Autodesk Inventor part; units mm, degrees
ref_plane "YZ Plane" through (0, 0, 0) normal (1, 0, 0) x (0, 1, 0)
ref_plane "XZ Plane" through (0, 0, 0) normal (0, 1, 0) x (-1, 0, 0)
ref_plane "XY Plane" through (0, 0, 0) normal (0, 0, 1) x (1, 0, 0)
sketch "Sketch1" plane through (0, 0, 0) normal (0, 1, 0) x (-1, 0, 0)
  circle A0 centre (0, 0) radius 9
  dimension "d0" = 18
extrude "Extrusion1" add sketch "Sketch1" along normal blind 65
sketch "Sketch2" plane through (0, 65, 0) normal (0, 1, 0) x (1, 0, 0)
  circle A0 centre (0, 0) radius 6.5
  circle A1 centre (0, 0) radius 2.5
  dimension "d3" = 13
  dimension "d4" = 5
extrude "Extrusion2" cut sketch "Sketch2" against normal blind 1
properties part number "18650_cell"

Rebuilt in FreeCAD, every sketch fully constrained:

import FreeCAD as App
import Part
import Sketcher

doc = App.newDocument("Part")
params = doc.addObject("Spreadsheet::Sheet", "Params")
for row, (alias, value) in enumerate([
    ("sketch1_diameter", "18 mm"),
    ("pad1_length", "65 mm"),
    ("sketch2_diameter", "13 mm"),
    ("sketch2_diameter2", "5 mm"),
    ("pocket1_length", "1 mm"),
], start=1):
    params.set(f"A{row}", alias)
    params.set(f"B{row}", "=" + value)
    params.setAlias(f"B{row}", alias)

body = doc.addObject("PartDesign::Body", "Body")

sketch1 = body.newObject("Sketcher::SketchObject", "Sketch")
sketch1.AttachmentSupport = (doc.getObject("XZ_Plane"), [""])
sketch1.MapMode = "FlatFace"
sketch1.addGeometry(Part.Circle(App.Vector(0, 0, 0), App.Vector(0, 0, 1), 9), False)
sketch1.addConstraint([
    Sketcher.Constraint("Coincident", 0, 3, -1, 1),
    Sketcher.Constraint("Diameter", 0, 18.0),
])
sketch1.setExpression("Constraints[1]", "Params.sketch1_diameter")
pad1 = body.newObject("PartDesign::Pad", "Pad")
pad1.Profile = sketch1
pad1.setExpression("Length", "Params.pad1_length")
pad1.Reversed = True

sketch2 = body.newObject("Sketcher::SketchObject", "Sketch001")
sketch2.AttachmentSupport = (doc.getObject("XZ_Plane"), [""])
sketch2.MapMode = "FlatFace"
sketch2.AttachmentOffset = App.Placement(App.Vector(0, 0, -65), App.Rotation())
sketch2.addGeometry([
    Part.Circle(App.Vector(0, 0, 0), App.Vector(0, 0, 1), 6.5),
    Part.Circle(App.Vector(0, 0, 0), App.Vector(0, 0, 1), 2.5),
], False)
sketch2.addConstraint([
    Sketcher.Constraint("Coincident", 0, 3, -1, 1),
    Sketcher.Constraint("Coincident", 1, 3, -1, 1),
    Sketcher.Constraint("Diameter", 0, 13.0),
    Sketcher.Constraint("Diameter", 1, 5.0),
])
sketch2.setExpression("Constraints[2]", "Params.sketch2_diameter")
sketch2.setExpression("Constraints[3]", "Params.sketch2_diameter2")
pocket1 = body.newObject("PartDesign::Pocket", "Pocket")
pocket1.Profile = sketch2
pocket1.setExpression("Length", "Params.pocket1_length")
pocket1.Reversed = True

doc.recompute()
